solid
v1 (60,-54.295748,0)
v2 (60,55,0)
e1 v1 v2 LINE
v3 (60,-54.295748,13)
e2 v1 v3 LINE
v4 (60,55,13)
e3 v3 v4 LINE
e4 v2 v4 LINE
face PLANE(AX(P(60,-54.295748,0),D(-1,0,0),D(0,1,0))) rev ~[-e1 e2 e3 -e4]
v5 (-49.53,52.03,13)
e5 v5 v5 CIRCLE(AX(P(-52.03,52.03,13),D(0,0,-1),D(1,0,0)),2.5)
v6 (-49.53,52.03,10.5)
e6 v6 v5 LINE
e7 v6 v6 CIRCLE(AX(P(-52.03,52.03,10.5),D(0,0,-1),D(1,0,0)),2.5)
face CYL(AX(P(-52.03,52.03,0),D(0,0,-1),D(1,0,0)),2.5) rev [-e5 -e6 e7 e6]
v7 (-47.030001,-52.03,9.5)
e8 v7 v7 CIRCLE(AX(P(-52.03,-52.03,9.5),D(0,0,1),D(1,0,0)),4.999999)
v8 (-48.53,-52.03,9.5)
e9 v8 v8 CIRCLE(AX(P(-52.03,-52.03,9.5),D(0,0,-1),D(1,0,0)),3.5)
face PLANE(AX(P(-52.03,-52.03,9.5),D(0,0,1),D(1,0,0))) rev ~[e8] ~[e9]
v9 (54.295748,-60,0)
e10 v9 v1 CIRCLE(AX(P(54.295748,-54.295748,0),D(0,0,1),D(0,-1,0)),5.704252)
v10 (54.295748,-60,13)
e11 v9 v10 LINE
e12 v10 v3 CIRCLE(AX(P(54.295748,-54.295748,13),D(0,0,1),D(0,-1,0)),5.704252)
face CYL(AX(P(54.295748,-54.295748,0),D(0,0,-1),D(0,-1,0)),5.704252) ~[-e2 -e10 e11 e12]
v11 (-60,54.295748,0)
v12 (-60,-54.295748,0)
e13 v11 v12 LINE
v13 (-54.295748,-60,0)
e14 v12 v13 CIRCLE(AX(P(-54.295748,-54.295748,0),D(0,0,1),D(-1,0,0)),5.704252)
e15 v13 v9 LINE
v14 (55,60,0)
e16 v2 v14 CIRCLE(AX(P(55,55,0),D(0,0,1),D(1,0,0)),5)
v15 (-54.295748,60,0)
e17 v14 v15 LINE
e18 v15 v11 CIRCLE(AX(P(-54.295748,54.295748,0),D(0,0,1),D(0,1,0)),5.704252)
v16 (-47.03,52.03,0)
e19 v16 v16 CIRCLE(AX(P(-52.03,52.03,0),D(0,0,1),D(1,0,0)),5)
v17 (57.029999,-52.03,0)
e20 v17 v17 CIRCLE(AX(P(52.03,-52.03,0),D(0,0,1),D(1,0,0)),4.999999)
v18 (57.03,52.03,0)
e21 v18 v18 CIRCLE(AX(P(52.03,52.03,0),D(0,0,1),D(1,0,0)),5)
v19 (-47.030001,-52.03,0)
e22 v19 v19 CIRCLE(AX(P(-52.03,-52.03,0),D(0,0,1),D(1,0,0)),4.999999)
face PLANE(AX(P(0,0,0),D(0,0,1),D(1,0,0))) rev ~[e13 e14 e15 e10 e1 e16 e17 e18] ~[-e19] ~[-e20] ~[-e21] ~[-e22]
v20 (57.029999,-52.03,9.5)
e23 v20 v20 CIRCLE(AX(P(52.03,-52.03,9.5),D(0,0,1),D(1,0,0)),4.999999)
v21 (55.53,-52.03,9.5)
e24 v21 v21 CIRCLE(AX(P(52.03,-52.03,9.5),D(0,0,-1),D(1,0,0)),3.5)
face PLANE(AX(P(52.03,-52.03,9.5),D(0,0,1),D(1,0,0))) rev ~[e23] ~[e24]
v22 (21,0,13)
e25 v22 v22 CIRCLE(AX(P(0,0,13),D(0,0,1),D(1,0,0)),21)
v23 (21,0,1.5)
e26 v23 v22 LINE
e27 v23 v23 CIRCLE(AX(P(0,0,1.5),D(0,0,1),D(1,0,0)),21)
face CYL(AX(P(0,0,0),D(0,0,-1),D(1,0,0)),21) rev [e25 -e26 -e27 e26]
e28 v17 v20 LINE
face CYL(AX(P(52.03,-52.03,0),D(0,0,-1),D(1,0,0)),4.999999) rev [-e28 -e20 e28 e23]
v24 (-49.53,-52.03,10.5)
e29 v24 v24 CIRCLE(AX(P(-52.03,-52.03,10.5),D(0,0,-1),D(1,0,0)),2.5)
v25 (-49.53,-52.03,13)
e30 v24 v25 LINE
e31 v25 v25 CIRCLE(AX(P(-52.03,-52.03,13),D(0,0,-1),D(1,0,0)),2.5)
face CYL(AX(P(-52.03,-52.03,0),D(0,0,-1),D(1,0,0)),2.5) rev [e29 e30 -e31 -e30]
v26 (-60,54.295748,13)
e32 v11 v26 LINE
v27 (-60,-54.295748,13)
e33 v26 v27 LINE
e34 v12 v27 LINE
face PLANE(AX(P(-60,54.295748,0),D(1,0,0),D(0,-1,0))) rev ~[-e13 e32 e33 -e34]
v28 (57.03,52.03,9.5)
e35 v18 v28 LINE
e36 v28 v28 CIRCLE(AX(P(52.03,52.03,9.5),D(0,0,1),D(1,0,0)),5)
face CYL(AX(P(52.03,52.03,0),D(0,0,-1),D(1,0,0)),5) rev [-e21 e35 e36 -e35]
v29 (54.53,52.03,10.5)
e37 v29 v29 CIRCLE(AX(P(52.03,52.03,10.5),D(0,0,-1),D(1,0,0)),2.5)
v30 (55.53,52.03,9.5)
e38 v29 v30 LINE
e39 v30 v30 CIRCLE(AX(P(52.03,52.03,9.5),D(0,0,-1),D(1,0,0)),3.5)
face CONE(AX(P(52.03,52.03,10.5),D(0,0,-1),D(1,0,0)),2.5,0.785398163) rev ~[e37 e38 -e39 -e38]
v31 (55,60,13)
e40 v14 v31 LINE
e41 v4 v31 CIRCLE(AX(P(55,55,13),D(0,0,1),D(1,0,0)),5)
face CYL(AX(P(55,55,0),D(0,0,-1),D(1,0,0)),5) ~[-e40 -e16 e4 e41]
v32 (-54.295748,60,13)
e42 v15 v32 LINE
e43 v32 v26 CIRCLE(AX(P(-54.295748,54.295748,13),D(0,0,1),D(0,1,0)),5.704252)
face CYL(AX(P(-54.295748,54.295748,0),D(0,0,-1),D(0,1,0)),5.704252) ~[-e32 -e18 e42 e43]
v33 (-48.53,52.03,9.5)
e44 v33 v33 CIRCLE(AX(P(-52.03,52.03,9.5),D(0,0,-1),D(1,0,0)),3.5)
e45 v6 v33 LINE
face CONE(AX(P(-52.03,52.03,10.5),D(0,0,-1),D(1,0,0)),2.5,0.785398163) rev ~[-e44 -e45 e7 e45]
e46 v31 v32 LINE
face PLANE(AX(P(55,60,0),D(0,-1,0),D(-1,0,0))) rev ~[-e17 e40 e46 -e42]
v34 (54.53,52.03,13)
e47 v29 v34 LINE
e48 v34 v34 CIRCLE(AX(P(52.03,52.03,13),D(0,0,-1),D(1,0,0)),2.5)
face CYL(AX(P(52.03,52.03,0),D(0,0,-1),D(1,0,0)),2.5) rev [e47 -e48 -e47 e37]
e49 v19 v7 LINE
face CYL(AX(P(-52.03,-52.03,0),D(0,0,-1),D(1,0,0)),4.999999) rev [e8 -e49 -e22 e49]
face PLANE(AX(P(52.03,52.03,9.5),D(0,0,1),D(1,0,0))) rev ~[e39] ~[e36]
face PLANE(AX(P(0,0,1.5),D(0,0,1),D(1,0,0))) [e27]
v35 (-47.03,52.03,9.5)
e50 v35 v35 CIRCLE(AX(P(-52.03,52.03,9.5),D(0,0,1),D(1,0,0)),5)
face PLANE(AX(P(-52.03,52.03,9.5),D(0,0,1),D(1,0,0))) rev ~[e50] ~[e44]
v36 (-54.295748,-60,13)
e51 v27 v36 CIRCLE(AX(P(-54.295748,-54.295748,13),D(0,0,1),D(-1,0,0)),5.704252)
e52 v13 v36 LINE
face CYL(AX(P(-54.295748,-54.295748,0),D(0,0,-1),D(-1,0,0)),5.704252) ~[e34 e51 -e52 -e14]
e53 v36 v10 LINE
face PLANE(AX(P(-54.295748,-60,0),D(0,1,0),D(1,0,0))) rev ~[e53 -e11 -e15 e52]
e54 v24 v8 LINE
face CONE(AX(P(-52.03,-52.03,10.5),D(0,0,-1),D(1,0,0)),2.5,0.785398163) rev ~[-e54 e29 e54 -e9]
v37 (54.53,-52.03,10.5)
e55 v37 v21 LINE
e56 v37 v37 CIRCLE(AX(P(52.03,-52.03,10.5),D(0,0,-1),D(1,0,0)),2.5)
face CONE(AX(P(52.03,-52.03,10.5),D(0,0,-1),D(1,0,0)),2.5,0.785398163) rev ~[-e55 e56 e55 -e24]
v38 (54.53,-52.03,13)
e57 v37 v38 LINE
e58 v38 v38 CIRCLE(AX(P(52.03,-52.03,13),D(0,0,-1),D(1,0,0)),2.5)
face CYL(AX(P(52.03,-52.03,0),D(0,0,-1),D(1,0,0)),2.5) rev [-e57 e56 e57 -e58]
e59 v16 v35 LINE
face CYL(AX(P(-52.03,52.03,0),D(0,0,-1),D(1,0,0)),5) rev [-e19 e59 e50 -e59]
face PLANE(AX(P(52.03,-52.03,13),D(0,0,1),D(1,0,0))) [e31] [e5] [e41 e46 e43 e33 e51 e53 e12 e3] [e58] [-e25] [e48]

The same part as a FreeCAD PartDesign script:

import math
import FreeCAD as App
import Part
import Sketcher
from FreeCAD import Vector
Q = App.Units.Quantity


def edges_at(feature, points):
    """Names of the edges that pass closest to the given points."""
    edges = feature.Shape.Edges
    near = lambda p: min(range(len(edges)), key=lambda i: edges[i].distToShape(Part.Vertex(*p))[0])
    return sorted({f"Edge{near(p) + 1}" for p in points})

doc = App.newDocument("Part")
body = doc.addObject("PartDesign::Body", "Body")

sketch1 = doc.addObject("Sketcher::SketchObject", "Sketch")
body.addObject(sketch1)
sketch1.AttachmentSupport = (doc.XY_Plane, [""])
sketch1.MapMode = "FlatFace"
sketch1.addGeometry([
    Part.LineSegment(Vector(55, 60, 0), Vector(-54.295748, 60, 0)),
    Part.ArcOfCircle(Part.Circle(Vector(-54.295748, 54.295748, 0), Vector(0, 0, 1), 5.704252), math.radians(90), math.radians(180)),
    Part.LineSegment(Vector(-60, 54.295748, 0), Vector(-60, -54.295748, 0)),
    Part.ArcOfCircle(Part.Circle(Vector(-54.295748, -54.295748, 0), Vector(0, 0, 1), 5.704252), math.radians(180), math.radians(270)),
    Part.LineSegment(Vector(-54.295748, -60, 0), Vector(54.295748, -60, 0)),
    Part.ArcOfCircle(Part.Circle(Vector(54.295748, -54.295748, 0), Vector(0, 0, 1), 5.704252), math.radians(-90), math.radians(0)),
    Part.LineSegment(Vector(60, -54.295748, 0), Vector(60, 55, 0)),
    Part.ArcOfCircle(Part.Circle(Vector(55, 55, 0), Vector(0, 0, 1), 5), math.radians(0), math.radians(90)),
    Part.Circle(Vector(-52.03, -52.03, 0), Vector(0, 0, 1), 4.999999),
    Part.Circle(Vector(52.03, -52.03, 0), Vector(0, 0, 1), 4.999999),
    Part.Circle(Vector(0, 0, 0), Vector(0, 0, 1), 21),
    Part.Circle(Vector(-52.03, 52.03, 0), Vector(0, 0, 1), 5),
    Part.Circle(Vector(52.03, 52.03, 0), Vector(0, 0, 1), 5),
], False)
sketch1.addConstraint([
    Sketcher.Constraint("Tangent", 0, 2, 1, 1),
    Sketcher.Constraint("Tangent", 1, 2, 2, 1),
    Sketcher.Constraint("Tangent", 2, 2, 3, 1),
    Sketcher.Constraint("Tangent", 3, 2, 4, 1),
    Sketcher.Constraint("Tangent", 4, 2, 5, 1),
    Sketcher.Constraint("Tangent", 5, 2, 6, 1),
    Sketcher.Constraint("Tangent", 6, 2, 7, 1),
    Sketcher.Constraint("Tangent", 7, 2, 0, 1),
    Sketcher.Constraint("Horizontal", 0),
    Sketcher.Constraint("Vertical", 2),
    Sketcher.Constraint("Horizontal", 4),
    Sketcher.Constraint("Vertical", 6),
    Sketcher.Constraint("Coincident", 10, 3, -1, 1),
    Sketcher.Constraint("Equal", 1, 3),
    Sketcher.Constraint("Equal", 3, 5),
    Sketcher.Constraint("Equal", 7, 8),
    Sketcher.Constraint("Equal", 8, 9),
    Sketcher.Constraint("Equal", 9, 11),
    Sketcher.Constraint("Equal", 11, 12),
    Sketcher.Constraint("Symmetric", 1, 3, 5, 3, -1, 1),
    Sketcher.Constraint("Symmetric", 9, 3, 11, 3, -1, 1),
    Sketcher.Constraint("Symmetric", 8, 3, 12, 3, -1, 1),
    Sketcher.Constraint("Symmetric", 8, 3, 9, 3, -2),
    Sketcher.Constraint("Equal", 4, 2),
    Sketcher.Constraint("Diameter", 8, Q("9.999999 mm")),
    Sketcher.Constraint("Diameter", 10, Q("42 mm")),
    Sketcher.Constraint("DistanceX", -1, 1, 7, 3, Q("55 mm")),
    Sketcher.Constraint("DistanceX", 8, 3, -1, 1, Q("52.03 mm")),
    Sketcher.Constraint("DistanceY", 8, 3, -1, 1, Q("52.03 mm")),
    Sketcher.Constraint("Radius", 1, Q("5.704252 mm")),
])
pad1 = doc.addObject("PartDesign::Pad", "Pad")
body.addObject(pad1)
pad1.Profile = sketch1
pad1.Length = 13

sketch2 = doc.addObject("Sketcher::SketchObject", "Sketch001")
body.addObject(sketch2)
sketch2.AttachmentSupport = (doc.XY_Plane, [""])
sketch2.MapMode = "FlatFace"
sketch2.addGeometry(Part.Circle(Vector(0, 0, 0), Vector(0, 0, 1), 21), False)
sketch2.addConstraint([
    Sketcher.Constraint("Coincident", 0, 3, -1, 1),
    Sketcher.Constraint("Diameter", 0, Q("42 mm")),
])
pad2 = doc.addObject("PartDesign::Pad", "Pad001")
body.addObject(pad2)
pad2.Profile = sketch2
pad2.Length = 1.5

sketch3 = doc.addObject("Sketcher::SketchObject", "Sketch002")
body.addObject(sketch3)
sketch3.AttachmentSupport = (doc.XY_Plane, [""])
sketch3.MapMode = "FlatFace"
sketch3.AttachmentOffset = App.Placement(Vector(0, 0, 13), App.Rotation())
sketch3.addGeometry([
    Part.Circle(Vector(52.03, -52.03, 0), Vector(0, 0, 1), 4.999999),
    Part.Circle(Vector(-52.03, -52.03, 0), Vector(0, 0, 1), 4.999999),
    Part.Circle(Vector(-52.03, 52.03, 0), Vector(0, 0, 1), 5),
    Part.Circle(Vector(52.03, 52.03, 0), Vector(0, 0, 1), 5),
], False)
sketch3.addConstraint([
    Sketcher.Constraint("Equal", 0, 1),
    Sketcher.Constraint("Equal", 1, 2),
    Sketcher.Constraint("Equal", 2, 3),
    Sketcher.Constraint("Symmetric", 0, 3, 2, 3, -1, 1),
    Sketcher.Constraint("Symmetric", 1, 3, 3, 3, -1, 1),
    Sketcher.Constraint("Symmetric", 0, 3, 1, 3, -2),
    Sketcher.Constraint("Diameter", 1, Q("9.999999 mm")),
    Sketcher.Constraint("DistanceX", -1, 1, 0, 3, Q("52.03 mm")),
    Sketcher.Constraint("DistanceY", 0, 3, -1, 1, Q("52.03 mm")),
])
pad3 = doc.addObject("PartDesign::Pad", "Pad002")
body.addObject(pad3)
pad3.Profile = sketch3
pad3.Length = 3.5
pad3.Reversed = True

sketch4 = doc.addObject("Sketcher::SketchObject", "Sketch003")
body.addObject(sketch4)
sketch4.AttachmentSupport = (doc.XY_Plane, [""])
sketch4.MapMode = "FlatFace"
sketch4.addGeometry([
    Part.Circle(Vector(-52.03, -52.03, 0), Vector(0, 0, 1), 2.5),
    Part.Circle(Vector(52.03, -52.03, 0), Vector(0, 0, 1), 2.5),
    Part.Circle(Vector(52.03, 52.03, 0), Vector(0, 0, 1), 2.5),
    Part.Circle(Vector(-52.03, 52.03, 0), Vector(0, 0, 1), 2.5),
], False)
sketch4.addConstraint([
    Sketcher.Constraint("Equal", 0, 1),
    Sketcher.Constraint("Equal", 1, 2),
    Sketcher.Constraint("Equal", 2, 3),
    Sketcher.Constraint("Symmetric", 0, 3, 2, 3, -1, 1),
    Sketcher.Constraint("Symmetric", 1, 3, 3, 3, -1, 1),
    Sketcher.Constraint("Symmetric", 0, 3, 1, 3, -2),
    Sketcher.Constraint("Diameter", 0, Q("5 mm")),
    Sketcher.Constraint("DistanceX", 0, 3, -1, 1, Q("52.03 mm")),
    Sketcher.Constraint("DistanceY", 0, 3, -1, 1, Q("52.03 mm")),
])
pocket1 = doc.addObject("PartDesign::Pocket", "Pocket")
body.addObject(pocket1)
pocket1.Profile = sketch4
pocket1.Length = 27.6
pocket1.Reversed = True
doc.recompute()

chamfer = doc.addObject("PartDesign::Chamfer", "Chamfer")
body.addObject(chamfer)
chamfer.Base = (pocket1, edges_at(pocket1, [
    (49.53, 52.03, 9.5),
    (-54.53, 52.03, 9.5),
    (49.53, -52.03, 9.5),
    (-54.53, -52.03, 9.5),
]))
chamfer.Size = 1

doc.recompute()
